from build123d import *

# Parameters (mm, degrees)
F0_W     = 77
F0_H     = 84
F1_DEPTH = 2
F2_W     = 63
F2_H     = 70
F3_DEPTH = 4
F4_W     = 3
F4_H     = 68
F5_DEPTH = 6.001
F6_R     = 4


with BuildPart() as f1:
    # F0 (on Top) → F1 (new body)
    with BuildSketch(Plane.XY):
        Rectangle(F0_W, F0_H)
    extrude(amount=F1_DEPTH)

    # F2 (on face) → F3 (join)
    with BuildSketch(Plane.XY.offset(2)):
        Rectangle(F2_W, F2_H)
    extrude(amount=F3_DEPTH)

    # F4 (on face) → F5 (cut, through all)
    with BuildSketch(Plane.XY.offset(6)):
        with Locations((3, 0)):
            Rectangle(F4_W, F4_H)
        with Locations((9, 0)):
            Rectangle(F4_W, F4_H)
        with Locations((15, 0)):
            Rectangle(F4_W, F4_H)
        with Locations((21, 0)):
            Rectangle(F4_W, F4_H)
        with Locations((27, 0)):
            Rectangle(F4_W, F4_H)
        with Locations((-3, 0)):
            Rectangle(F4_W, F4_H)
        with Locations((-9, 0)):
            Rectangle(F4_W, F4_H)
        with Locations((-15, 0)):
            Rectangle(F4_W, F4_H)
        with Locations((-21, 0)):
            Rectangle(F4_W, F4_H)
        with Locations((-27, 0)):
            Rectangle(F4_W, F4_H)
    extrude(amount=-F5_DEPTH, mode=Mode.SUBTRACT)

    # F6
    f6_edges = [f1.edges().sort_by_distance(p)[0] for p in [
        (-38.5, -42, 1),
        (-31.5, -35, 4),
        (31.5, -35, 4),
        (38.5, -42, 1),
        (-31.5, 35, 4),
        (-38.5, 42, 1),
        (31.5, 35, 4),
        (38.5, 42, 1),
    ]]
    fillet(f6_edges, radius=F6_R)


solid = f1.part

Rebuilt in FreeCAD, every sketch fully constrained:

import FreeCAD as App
import Part
import Sketcher
from FreeCAD import Vector


def edges_at(feature, points):
    """Names of the edges that pass closest to the given points."""
    edges = feature.Shape.Edges
    near = lambda p: min(range(len(edges)), key=lambda i: edges[i].distToShape(Part.Vertex(*p))[0])
    return sorted({f"Edge{near(p) + 1}" for p in points})

doc = App.newDocument("Part")
body = doc.addObject("PartDesign::Body", "Body")

sketch1 = doc.addObject("Sketcher::SketchObject", "Sketch")
body.addObject(sketch1)
sketch1.AttachmentSupport = (doc.XY_Plane, [""])
sketch1.MapMode = "FlatFace"
sketch1.addGeometry(Part.LineSegment(Vector(-38, 42, 0), Vector(-38, -42, 0)), False)
sketch1.addGeometry(Part.LineSegment(Vector(-38, -42, 0), Vector(38, -42, 0)), False)
sketch1.addGeometry(Part.LineSegment(Vector(38, -42, 0), Vector(38, 42, 0)), False)
sketch1.addGeometry(Part.LineSegment(Vector(38, 42, 0), Vector(-38, 42, 0)), False)
sketch1.addConstraint(Sketcher.Constraint("Coincident", 0, 2, 1, 1))
sketch1.addConstraint(Sketcher.Constraint("Coincident", 1, 2, 2, 1))
sketch1.addConstraint(Sketcher.Constraint("Coincident", 2, 2, 3, 1))
sketch1.addConstraint(Sketcher.Constraint("Coincident", 3, 2, 0, 1))
sketch1.addConstraint(Sketcher.Constraint("Vertical", 0))
sketch1.addConstraint(Sketcher.Constraint("Horizontal", 1))
sketch1.addConstraint(Sketcher.Constraint("Vertical", 2))
sketch1.addConstraint(Sketcher.Constraint("Horizontal", 3))
sketch1.addConstraint(Sketcher.Constraint("Symmetric", 0, 2, 2, 2, -1, 1))
sketch1.addConstraint(Sketcher.Constraint("DistanceX", 1, 1, 1, 2, 77.0))
sketch1.addConstraint(Sketcher.Constraint("DistanceY", 0, 2, 0, 1, 84.0))
pad1 = doc.addObject("PartDesign::Pad", "Pad")
body.addObject(pad1)
pad1.Profile = sketch1
pad1.Length = 2

sketch2 = doc.addObject("Sketcher::SketchObject", "Sketch001")
body.addObject(sketch2)
sketch2.AttachmentSupport = (doc.XY_Plane, [""])
sketch2.MapMode = "FlatFace"
sketch2.AttachmentOffset = App.Placement(Vector(0, 0, 2), App.Rotation())
sketch2.addGeometry(Part.LineSegment(Vector(-32, 35, 0), Vector(-32, -35, 0)), False)
sketch2.addGeometry(Part.LineSegment(Vector(-32, -35, 0), Vector(32, -35, 0)), False)
sketch2.addGeometry(Part.LineSegment(Vector(32, -35, 0), Vector(32, 35, 0)), False)
sketch2.addGeometry(Part.LineSegment(Vector(32, 35, 0), Vector(-32, 35, 0)), False)
sketch2.addConstraint(Sketcher.Constraint("Coincident", 0, 2, 1, 1))
sketch2.addConstraint(Sketcher.Constraint("Coincident", 1, 2, 2, 1))
sketch2.addConstraint(Sketcher.Constraint("Coincident", 2, 2, 3, 1))
sketch2.addConstraint(Sketcher.Constraint("Coincident", 3, 2, 0, 1))
sketch2.addConstraint(Sketcher.Constraint("Vertical", 0))
sketch2.addConstraint(Sketcher.Constraint("Horizontal", 1))
sketch2.addConstraint(Sketcher.Constraint("Vertical", 2))
sketch2.addConstraint(Sketcher.Constraint("Horizontal", 3))
sketch2.addConstraint(Sketcher.Constraint("Symmetric", 0, 2, 2, 2, -1, 1))
sketch2.addConstraint(Sketcher.Constraint("DistanceX", 1, 1, 1, 2, 63.0))
sketch2.addConstraint(Sketcher.Constraint("DistanceY", 0, 2, 0, 1, 70.0))
pad2 = doc.addObject("PartDesign::Pad", "Pad001")
body.addObject(pad2)
pad2.Profile = sketch2
pad2.Length = 4

sketch3 = doc.addObject("Sketcher::SketchObject", "Sketch002")
body.addObject(sketch3)
sketch3.AttachmentSupport = (doc.XY_Plane, [""])
sketch3.MapMode = "FlatFace"
sketch3.AttachmentOffset = App.Placement(Vector(0, 0, 6), App.Rotation())
sketch3.addGeometry(Part.LineSegment(Vector(1.5, 34, 0), Vector(1.5, -34, 0)), False)
sketch3.addGeometry(Part.LineSegment(Vector(1.5, -34, 0), Vector(4.5, -34, 0)), False)
sketch3.addGeometry(Part.LineSegment(Vector(4.5, -34, 0), Vector(4.5, 34, 0)), False)
sketch3.addGeometry(Part.LineSegment(Vector(4.5, 34, 0), Vector(1.5, 34, 0)), False)
sketch3.addGeometry(Part.LineSegment(Vector(7.5, 34, 0), Vector(7.5, -34, 0)), False)
sketch3.addGeometry(Part.LineSegment(Vector(7.5, -34, 0), Vector(10.5, -34, 0)), False)
sketch3.addGeometry(Part.LineSegment(Vector(10.5, -34, 0), Vector(10.5, 34, 0)), False)
sketch3.addGeometry(Part.LineSegment(Vector(10.5, 34, 0), Vector(7.5, 34, 0)), False)
sketch3.addGeometry(Part.LineSegment(Vector(13.5, 34, 0), Vector(13.5, -34, 0)), False)
sketch3.addGeometry(Part.LineSegment(Vector(13.5, -34, 0), Vector(16.5, -34, 0)), False)
sketch3.addGeometry(Part.LineSegment(Vector(16.5, -34, 0), Vector(16.5, 34, 0)), False)
sketch3.addGeometry(Part.LineSegment(Vector(16.5, 34, 0), Vector(13.5, 34, 0)), False)
sketch3.addGeometry(Part.LineSegment(Vector(19.5, 34, 0), Vector(19.5, -34, 0)), False)
sketch3.addGeometry(Part.LineSegment(Vector(19.5, -34, 0), Vector(22.5, -34, 0)), False)
sketch3.addGeometry(Part.LineSegment(Vector(22.5, -34, 0), Vector(22.5, 34, 0)), False)
sketch3.addGeometry(Part.LineSegment(Vector(22.5, 34, 0), Vector(19.5, 34, 0)), False)
sketch3.addGeometry(Part.LineSegment(Vector(25.5, 34, 0), Vector(25.5, -34, 0)), False)
sketch3.addGeometry(Part.LineSegment(Vector(25.5, -34, 0), Vector(28.5, -34, 0)), False)
sketch3.addGeometry(Part.LineSegment(Vector(28.5, -34, 0), Vector(28.5, 34, 0)), False)
sketch3.addGeometry(Part.LineSegment(Vector(28.5, 34, 0), Vector(25.5, 34, 0)), False)
sketch3.addGeometry(Part.LineSegment(Vector(-4.5, 34, 0), Vector(-4.5, -34, 0)), False)
sketch3.addGeometry(Part.LineSegment(Vector(-4.5, -34, 0), Vector(-1.5, -34, 0)), False)
sketch3.addGeometry(Part.LineSegment(Vector(-1.5, -34, 0), Vector(-1.5, 34, 0)), False)
sketch3.addGeometry(Part.LineSegment(Vector(-1.5, 34, 0), Vector(-4.5, 34, 0)), False)
sketch3.addGeometry(Part.LineSegment(Vector(-10.5, 34, 0), Vector(-10.5, -34, 0)), False)
sketch3.addGeometry(Part.LineSegment(Vector(-10.5, -34, 0), Vector(-7.5, -34, 0)), False)
sketch3.addGeometry(Part.LineSegment(Vector(-7.5, -34, 0), Vector(-7.5, 34, 0)), False)
sketch3.addGeometry(Part.LineSegment(Vector(-7.5, 34, 0), Vector(-10.5, 34, 0)), False)
sketch3.addGeometry(Part.LineSegment(Vector(-16.5, 34, 0), Vector(-16.5, -34, 0)), False)
sketch3.addGeometry(Part.LineSegment(Vector(-16.5, -34, 0), Vector(-13.5, -34, 0)), False)
sketch3.addGeometry(Part.LineSegment(Vector(-13.5, -34, 0), Vector(-13.5, 34, 0)), False)
sketch3.addGeometry(Part.LineSegment(Vector(-13.5, 34, 0), Vector(-16.5, 34, 0)), False)
sketch3.addGeometry(Part.LineSegment(Vector(-22.5, 34, 0), Vector(-22.5, -34, 0)), False)
sketch3.addGeometry(Part.LineSegment(Vector(-22.5, -34, 0), Vector(-19.5, -34, 0)), False)
sketch3.addGeometry(Part.LineSegment(Vector(-19.5, -34, 0), Vector(-19.5, 34, 0)), False)
sketch3.addGeometry(Part.LineSegment(Vector(-19.5, 34, 0), Vector(-22.5, 34, 0)), False)
sketch3.addGeometry(Part.LineSegment(Vector(-28.5, 34, 0), Vector(-28.5, -34, 0)), False)
sketch3.addGeometry(Part.LineSegment(Vector(-28.5, -34, 0), Vector(-25.5, -34, 0)), False)
sketch3.addGeometry(Part.LineSegment(Vector(-25.5, -34, 0), Vector(-25.5, 34, 0)), False)
sketch3.addGeometry(Part.LineSegment(Vector(-25.5, 34, 0), Vector(-28.5, 34, 0)), False)
sketch3.addConstraint(Sketcher.Constraint("Coincident", 0, 2, 1, 1))
sketch3.addConstraint(Sketcher.Constraint("Coincident", 1, 2, 2, 1))
sketch3.addConstraint(Sketcher.Constraint("Coincident", 2, 2, 3, 1))
sketch3.addConstraint(Sketcher.Constraint("Coincident", 3, 2, 0, 1))
sketch3.addConstraint(Sketcher.Constraint("Coincident", 4, 2, 5, 1))
sketch3.addConstraint(Sketcher.Constraint("Coincident", 5, 2, 6, 1))
sketch3.addConstraint(Sketcher.Constraint("Coincident", 6, 2, 7, 1))
sketch3.addConstraint(Sketcher.Constraint("Coincident", 7, 2, 4, 1))
sketch3.addConstraint(Sketcher.Constraint("Coincident", 8, 2, 9, 1))
sketch3.addConstraint(Sketcher.Constraint("Coincident", 9, 2, 10, 1))
sketch3.addConstraint(Sketcher.Constraint("Coincident", 10, 2, 11, 1))
sketch3.addConstraint(Sketcher.Constraint("Coincident", 11, 2, 8, 1))
sketch3.addConstraint(Sketcher.Constraint("Coincident", 12, 2, 13, 1))
sketch3.addConstraint(Sketcher.Constraint("Coincident", 13, 2, 14, 1))
sketch3.addConstraint(Sketcher.Constraint("Coincident", 14, 2, 15, 1))
sketch3.addConstraint(Sketcher.Constraint("Coincident", 15, 2, 12, 1))
sketch3.addConstraint(Sketcher.Constraint("Coincident", 16, 2, 17, 1))
sketch3.addConstraint(Sketcher.Constraint("Coincident", 17, 2, 18, 1))
sketch3.addConstraint(Sketcher.Constraint("Coincident", 18, 2, 19, 1))
sketch3.addConstraint(Sketcher.Constraint("Coincident", 19, 2, 16, 1))
sketch3.addConstraint(Sketcher.Constraint("Coincident", 20, 2, 21, 1))
sketch3.addConstraint(Sketcher.Constraint("Coincident", 21, 2, 22, 1))
sketch3.addConstraint(Sketcher.Constraint("Coincident", 22, 2, 23, 1))
sketch3.addConstraint(Sketcher.Constraint("Coincident", 23, 2, 20, 1))
sketch3.addConstraint(Sketcher.Constraint("Coincident", 24, 2, 25, 1))
sketch3.addConstraint(Sketcher.Constraint("Coincident", 25, 2, 26, 1))
sketch3.addConstraint(Sketcher.Constraint("Coincident", 26, 2, 27, 1))
sketch3.addConstraint(Sketcher.Constraint("Coincident", 27, 2, 24, 1))
sketch3.addConstraint(Sketcher.Constraint("Coincident", 28, 2, 29, 1))
sketch3.addConstraint(Sketcher.Constraint("Coincident", 29, 2, 30, 1))
sketch3.addConstraint(Sketcher.Constraint("Coincident", 30, 2, 31, 1))
sketch3.addConstraint(Sketcher.Constraint("Coincident", 31, 2, 28, 1))
sketch3.addConstraint(Sketcher.Constraint("Coincident", 32, 2, 33, 1))
sketch3.addConstraint(Sketcher.Constraint("Coincident", 33, 2, 34, 1))
sketch3.addConstraint(Sketcher.Constraint("Coincident", 34, 2, 35, 1))
sketch3.addConstraint(Sketcher.Constraint("Coincident", 35, 2, 32, 1))
sketch3.addConstraint(Sketcher.Constraint("Coincident", 36, 2, 37, 1))
sketch3.addConstraint(Sketcher.Constraint("Coincident", 37, 2, 38, 1))
sketch3.addConstraint(Sketcher.Constraint("Coincident", 38, 2, 39, 1))
sketch3.addConstraint(Sketcher.Constraint("Coincident", 39, 2, 36, 1))
sketch3.addConstraint(Sketcher.Constraint("Vertical", 0))
sketch3.addConstraint(Sketcher.Constraint("Horizontal", 1))
sketch3.addConstraint(Sketcher.Constraint("Vertical", 2))
sketch3.addConstraint(Sketcher.Constraint("Horizontal", 3))
sketch3.addConstraint(Sketcher.Constraint("Vertical", 4))
sketch3.addConstraint(Sketcher.Constraint("Horizontal", 5))
sketch3.addConstraint(Sketcher.Constraint("Vertical", 6))
sketch3.addConstraint(Sketcher.Constraint("Horizontal", 7))
sketch3.addConstraint(Sketcher.Constraint("Vertical", 8))
sketch3.addConstraint(Sketcher.Constraint("Horizontal", 9))
sketch3.addConstraint(Sketcher.Constraint("Vertical", 10))
sketch3.addConstraint(Sketcher.Constraint("Horizontal", 11))
sketch3.addConstraint(Sketcher.Constraint("Vertical", 12))
sketch3.addConstraint(Sketcher.Constraint("Horizontal", 13))
sketch3.addConstraint(Sketcher.Constraint("Vertical", 14))
sketch3.addConstraint(Sketcher.Constraint("Horizontal", 15))
sketch3.addConstraint(Sketcher.Constraint("Vertical", 16))
sketch3.addConstraint(Sketcher.Constraint("Horizontal", 17))
sketch3.addConstraint(Sketcher.Constraint("Vertical", 18))
sketch3.addConstraint(Sketcher.Constraint("Horizontal", 19))
sketch3.addConstraint(Sketcher.Constraint("Vertical", 20))
sketch3.addConstraint(Sketcher.Constraint("Horizontal", 21))
sketch3.addConstraint(Sketcher.Constraint("Vertical", 22))
sketch3.addConstraint(Sketcher.Constraint("Horizontal", 23))
sketch3.addConstraint(Sketcher.Constraint("Vertical", 24))
sketch3.addConstraint(Sketcher.Constraint("Horizontal", 25))
sketch3.addConstraint(Sketcher.Constraint("Vertical", 26))
sketch3.addConstraint(Sketcher.Constraint("Horizontal", 27))
sketch3.addConstraint(Sketcher.Constraint("Vertical", 28))
sketch3.addConstraint(Sketcher.Constraint("Horizontal", 29))
sketch3.addConstraint(Sketcher.Constraint("Vertical", 30))
sketch3.addConstraint(Sketcher.Constraint("Horizontal", 31))
sketch3.addConstraint(Sketcher.Constraint("Vertical", 32))
sketch3.addConstraint(Sketcher.Constraint("Horizontal", 33))
sketch3.addConstraint(Sketcher.Constraint("Vertical", 34))
sketch3.addConstraint(Sketcher.Constraint("Horizontal", 35))
sketch3.addConstraint(Sketcher.Constraint("Vertical", 36))
sketch3.addConstraint(Sketcher.Constraint("Horizontal", 37))
sketch3.addConstraint(Sketcher.Constraint("Vertical", 38))
sketch3.addConstraint(Sketcher.Constraint("Horizontal", 39))
sketch3.addConstraint(Sketcher.Constraint("Symmetric", 2, 2, 20, 2, -1, 1))
sketch3.addConstraint(Sketcher.Constraint("Symmetric", 0, 2, 22, 2, -1, 1))
sketch3.addConstraint(Sketcher.Constraint("Symmetric", 6, 2, 24, 2, -1, 1))
sketch3.addConstraint(Sketcher.Constraint("Symmetric", 4, 2, 26, 2, -1, 1))
sketch3.addConstraint(Sketcher.Constraint("Symmetric", 10, 2, 28, 2, -1, 1))
sketch3.addConstraint(Sketcher.Constraint("Symmetric", 8, 2, 30, 2, -1, 1))
sketch3.addConstraint(Sketcher.Constraint("Symmetric", 14, 2, 32, 2, -1, 1))
sketch3.addConstraint(Sketcher.Constraint("Symmetric", 12, 2, 34, 2, -1, 1))
sketch3.addConstraint(Sketcher.Constraint("Symmetric", 18, 2, 36, 2, -1, 1))
sketch3.addConstraint(Sketcher.Constraint("Symmetric", 16, 2, 38, 2, -1, 1))
sketch3.addConstraint(Sketcher.Constraint("Horizontal", 1, 2, 4, 2))
sketch3.addConstraint(Sketcher.Constraint("Horizontal", 3, 2, 6, 2))
sketch3.addConstraint(Sketcher.Constraint("Horizontal", 5, 2, 8, 2))
sketch3.addConstraint(Sketcher.Constraint("Horizontal", 7, 2, 10, 2))
sketch3.addConstraint(Sketcher.Constraint("Horizontal", 9, 2, 12, 2))
sketch3.addConstraint(Sketcher.Constraint("Horizontal", 11, 2, 14, 2))
sketch3.addConstraint(Sketcher.Constraint("Horizontal", 13, 2, 16, 2))
sketch3.addConstraint(Sketcher.Constraint("Horizontal", 15, 2, 18, 2))
sketch3.addConstraint(Sketcher.Constraint("Horizontal", 17, 2, 20, 2))
sketch3.addConstraint(Sketcher.Constraint("Equal", 3, 5))
sketch3.addConstraint(Sketcher.Constraint("Equal", 7, 9))
sketch3.addConstraint(Sketcher.Constraint("Equal", 11, 13))
sketch3.addConstraint(Sketcher.Constraint("Equal", 15, 17))
sketch3.addConstraint(Sketcher.Constraint("DistanceX", 1, 1, 1, 2, 3.0))
sketch3.addConstraint(Sketcher.Constraint("DistanceY", 0, 2, 0, 1, 68.0))
sketch3.addConstraint(Sketcher.Constraint("DistanceX", 1, 2, 4, 2, 3.0))
sketch3.addConstraint(Sketcher.Constraint("DistanceX", 5, 2, 8, 2, 3.0))
sketch3.addConstraint(Sketcher.Constraint("DistanceX", 9, 2, 12, 2, 3.0))
sketch3.addConstraint(Sketcher.Constraint("DistanceX", 13, 2, 16, 2, 3.0))
sketch3.addConstraint(Sketcher.Constraint("DistanceX", 20, 2, 0, 2, 6.0))
pocket1 = doc.addObject("PartDesign::Pocket", "Pocket")
body.addObject(pocket1)
pocket1.Profile = sketch3
pocket1.Type = "ThroughAll"
doc.recompute()

fillet = doc.addObject("PartDesign::Fillet", "Fillet")
body.addObject(fillet)
fillet.Base = (pocket1, edges_at(pocket1, [
    (-38.5, -42, 1),
    (-31.5, -35, 4),
    (31.5, -35, 4),
    (38.5, -42, 1),
    (-31.5, 35, 4),
    (-38.5, 42, 1),
    (31.5, 35, 4),
    (38.5, 42, 1),
]))
fillet.Radius = 4

doc.recompute()
